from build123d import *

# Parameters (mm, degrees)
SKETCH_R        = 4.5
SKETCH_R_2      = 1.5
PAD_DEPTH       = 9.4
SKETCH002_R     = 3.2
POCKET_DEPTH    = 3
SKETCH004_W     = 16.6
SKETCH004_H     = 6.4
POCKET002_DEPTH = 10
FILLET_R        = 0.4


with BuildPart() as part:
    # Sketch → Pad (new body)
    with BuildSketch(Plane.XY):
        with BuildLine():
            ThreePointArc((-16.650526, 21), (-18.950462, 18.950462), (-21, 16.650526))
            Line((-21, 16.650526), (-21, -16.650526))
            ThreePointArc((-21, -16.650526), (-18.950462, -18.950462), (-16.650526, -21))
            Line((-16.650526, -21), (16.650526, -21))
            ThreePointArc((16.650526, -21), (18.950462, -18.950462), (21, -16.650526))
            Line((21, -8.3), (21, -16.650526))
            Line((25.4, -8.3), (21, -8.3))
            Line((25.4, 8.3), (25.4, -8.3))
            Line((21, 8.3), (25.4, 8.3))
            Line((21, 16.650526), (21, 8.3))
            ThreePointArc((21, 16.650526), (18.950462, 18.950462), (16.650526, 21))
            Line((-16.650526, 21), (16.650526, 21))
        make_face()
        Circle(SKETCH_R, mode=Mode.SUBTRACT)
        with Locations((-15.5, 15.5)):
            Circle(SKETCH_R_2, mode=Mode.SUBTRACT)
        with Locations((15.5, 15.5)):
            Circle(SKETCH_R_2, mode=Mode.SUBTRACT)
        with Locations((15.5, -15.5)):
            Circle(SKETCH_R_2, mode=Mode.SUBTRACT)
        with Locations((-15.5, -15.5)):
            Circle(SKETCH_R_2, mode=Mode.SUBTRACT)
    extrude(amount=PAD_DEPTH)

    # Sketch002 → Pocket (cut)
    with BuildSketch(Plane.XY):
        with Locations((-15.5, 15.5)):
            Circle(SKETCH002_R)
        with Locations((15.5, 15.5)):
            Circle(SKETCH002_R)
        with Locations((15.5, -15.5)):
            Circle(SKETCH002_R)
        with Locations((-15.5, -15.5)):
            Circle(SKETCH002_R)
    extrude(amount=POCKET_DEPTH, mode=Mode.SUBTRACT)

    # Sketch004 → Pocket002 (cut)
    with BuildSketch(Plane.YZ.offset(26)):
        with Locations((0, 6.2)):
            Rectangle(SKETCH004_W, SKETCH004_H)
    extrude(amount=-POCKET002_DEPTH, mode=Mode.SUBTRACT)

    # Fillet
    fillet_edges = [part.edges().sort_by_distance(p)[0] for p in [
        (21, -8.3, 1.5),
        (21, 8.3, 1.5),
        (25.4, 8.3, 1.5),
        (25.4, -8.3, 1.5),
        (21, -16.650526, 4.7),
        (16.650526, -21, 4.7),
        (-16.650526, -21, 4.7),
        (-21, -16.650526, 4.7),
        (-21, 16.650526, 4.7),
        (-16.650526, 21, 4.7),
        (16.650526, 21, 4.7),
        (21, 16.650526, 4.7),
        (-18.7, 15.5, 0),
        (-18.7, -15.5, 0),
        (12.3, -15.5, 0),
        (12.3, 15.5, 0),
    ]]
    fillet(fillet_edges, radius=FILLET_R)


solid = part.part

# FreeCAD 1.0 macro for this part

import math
import FreeCAD as App
import Part
import Sketcher

V = App.Vector
Q = App.Units.Quantity


def edges_at(feature, points):
    """Names of the edges that pass closest to the given points."""
    edges = feature.Shape.Edges
    near = lambda p: min(range(len(edges)), key=lambda i: edges[i].distToShape(Part.Vertex(*p))[0])
    return sorted({f"Edge{near(p) + 1}" for p in points})

doc = App.newDocument("Part")
body = doc.addObject("PartDesign::Body", "Body")

# Sketch on XY plane
sketch1 = body.newObject("Sketcher::SketchObject", "Sketch")
sketch1.AttachmentSupport = (doc.getObject("XY_Plane"), [""])
sketch1.MapMode = "FlatFace"
sketch1.addGeometry(Part.ArcOfCircle(Part.Circle(V(0, 0, 0), V(0, 0, 1), 26.8), math.radians(128.41), math.radians(141.59)), False)
sketch1.addGeometry(Part.LineSegment(V(-21, 16.7, 0), V(-21, -16.7, 0)), False)
sketch1.addGeometry(Part.ArcOfCircle(Part.Circle(V(0, 0, 0), V(0, 0, 1), 26.8), math.radians(-141.59), math.radians(-128.41)), False)
sketch1.addGeometry(Part.LineSegment(V(-16.7, -21, 0), V(16.7, -21, 0)), False)
sketch1.addGeometry(Part.ArcOfCircle(Part.Circle(V(0, 0, 0), V(0, 0, 1), 26.8), math.radians(-51.59), math.radians(-38.41)), False)
sketch1.addGeometry(Part.LineSegment(V(21, -16.7, 0), V(21, -8.3, 0)), False)
sketch1.addGeometry(Part.LineSegment(V(21, -8.3, 0), V(25.4, -8.3, 0)), False)
sketch1.addGeometry(Part.LineSegment(V(25.4, -8.3, 0), V(25.4, 8.3, 0)), False)
sketch1.addGeometry(Part.LineSegment(V(25.4, 8.3, 0), V(21, 8.3, 0)), False)
sketch1.addGeometry(Part.LineSegment(V(21, 8.3, 0), V(21, 16.7, 0)), False)
sketch1.addGeometry(Part.ArcOfCircle(Part.Circle(V(0, 0, 0), V(0, 0, 1), 26.8), math.radians(38.41), math.radians(51.59)), False)
sketch1.addGeometry(Part.LineSegment(V(16.7, 21, 0), V(-16.7, 21, 0)), False)
sketch1.addGeometry(Part.Circle(V(-15.5, -15.5, 0), V(0, 0, 1), 1.5), False)
sketch1.addGeometry(Part.Circle(V(15.5, -15.5, 0), V(0, 0, 1), 1.5), False)
sketch1.addGeometry(Part.Circle(V(-15.5, 15.5, 0), V(0, 0, 1), 1.5), False)
sketch1.addGeometry(Part.Circle(V(0, 0, 0), V(0, 0, 1), 4.5), False)
sketch1.addGeometry(Part.Circle(V(15.5, 15.5, 0), V(0, 0, 1), 1.5), False)
sketch1.addConstraint(Sketcher.Constraint("Coincident", 0, 2, 1, 1))
sketch1.addConstraint(Sketcher.Constraint("Coincident", 1, 2, 2, 1))
sketch1.addConstraint(Sketcher.Constraint("Coincident", 2, 2, 3, 1))
sketch1.addConstraint(Sketcher.Constraint("Coincident", 3, 2, 4, 1))
sketch1.addConstraint(Sketcher.Constraint("Coincident", 4, 2, 5, 1))
sketch1.addConstraint(Sketcher.Constraint("Coincident", 5, 2, 6, 1))
sketch1.addConstraint(Sketcher.Constraint("Coincident", 6, 2, 7, 1))
sketch1.addConstraint(Sketcher.Constraint("Coincident", 7, 2, 8, 1))
sketch1.addConstraint(Sketcher.Constraint("Coincident", 8, 2, 9, 1))
sketch1.addConstraint(Sketcher.Constraint("Coincident", 9, 2, 10, 1))
sketch1.addConstraint(Sketcher.Constraint("Coincident", 10, 2, 11, 1))
sketch1.addConstraint(Sketcher.Constraint("Coincident", 11, 2, 0, 1))
sketch1.addConstraint(Sketcher.Constraint("Vertical", 1))
sketch1.addConstraint(Sketcher.Constraint("Horizontal", 3))
sketch1.addConstraint(Sketcher.Constraint("Vertical", 5))
sketch1.addConstraint(Sketcher.Constraint("Horizontal", 6))
sketch1.addConstraint(Sketcher.Constraint("Vertical", 7))
sketch1.addConstraint(Sketcher.Constraint("Horizontal", 8))
sketch1.addConstraint(Sketcher.Constraint("Vertical", 9))
sketch1.addConstraint(Sketcher.Constraint("Horizontal", 11))
sketch1.addConstraint(Sketcher.Constraint("Coincident", 15, 3, -1, 1))
sketch1.addConstraint(Sketcher.Constraint("Equal", 0, 2))
sketch1.addConstraint(Sketcher.Constraint("Equal", 2, 4))
sketch1.addConstraint(Sketcher.Constraint("Equal", 4, 10))
sketch1.addConstraint(Sketcher.Constraint("Equal", 12, 13))
sketch1.addConstraint(Sketcher.Constraint("Equal", 13, 14))
sketch1.addConstraint(Sketcher.Constraint("Equal", 14, 16))
sketch1.addConstraint(Sketcher.Constraint("Symmetric", 0, 3, 4, 3, -1, 1))
sketch1.addConstraint(Sketcher.Constraint("Symmetric", 2, 3, 10, 3, -1, 1))
sketch1.addConstraint(Sketcher.Constraint("Symmetric", 13, 3, 14, 3, -1, 1))
sketch1.addConstraint(Sketcher.Constraint("Symmetric", 12, 3, 16, 3, -1, 1))
sketch1.addConstraint(Sketcher.Constraint("Symmetric", 2, 3, 4, 3, -2))
sketch1.addConstraint(Sketcher.Constraint("Symmetric", 12, 3, 13, 3, -2))
sketch1.addConstraint(Sketcher.Constraint("Symmetric", 5, 2, 8, 2, -1))
sketch1.addConstraint(Sketcher.Constraint("Horizontal", 1, 2, 4, 2))
sketch1.addConstraint(Sketcher.Constraint("Vertical", 3, 2, 10, 2))
sketch1.addConstraint(Sketcher.Constraint("Equal", 11, 1))
sketch1.addConstraint(Sketcher.Constraint("Diameter", 12, Q("3 mm")))
sketch1.addConstraint(Sketcher.Constraint("Diameter", 15, Q("9 mm")))
sketch1.addConstraint(Sketcher.Constraint("DistanceX", 6, 1, 6, 2, Q("4.4 mm")))
sketch1.addConstraint(Sketcher.Constraint("DistanceY", 7, 1, 7, 2, Q("16.6 mm")))
sketch1.addConstraint(Sketcher.Constraint("DistanceX", 0, 2, -1, 1, Q("21 mm")))
sketch1.addConstraint(Sketcher.Constraint("DistanceY", 2, 2, -1, 1, Q("21 mm")))
sketch1.addConstraint(Sketcher.Constraint("DistanceX", 12, 3, 13, 3, Q("31 mm")))
sketch1.addConstraint(Sketcher.Constraint("DistanceY", 12, 3, 14, 3, Q("31 mm")))
sketch1.addConstraint(Sketcher.Constraint("Radius", 0, Q("26.799989 mm")))
sketch1.addConstraint(Sketcher.Constraint("DistanceX", 3, 1, 3, 2, Q("33.301052 mm")))
pad1 = body.newObject("PartDesign::Pad", "Pad")
pad1.Profile = sketch1
pad1.Length = 9.4

# Sketch on XY plane
sketch2 = body.newObject("Sketcher::SketchObject", "Sketch001")
sketch2.AttachmentSupport = (doc.getObject("XY_Plane"), [""])
sketch2.MapMode = "FlatFace"
sketch2.addGeometry(Part.Circle(V(-15.5, 15.5, 0), V(0, 0, 1), 3.2), False)
sketch2.addGeometry(Part.Circle(V(15.5, 15.5, 0), V(0, 0, 1), 3.2), False)
sketch2.addGeometry(Part.Circle(V(15.5, -15.5, 0), V(0, 0, 1), 3.2), False)
sketch2.addGeometry(Part.Circle(V(-15.5, -15.5, 0), V(0, 0, 1), 3.2), False)
sketch2.addConstraint(Sketcher.Constraint("Equal", 0, 1))
sketch2.addConstraint(Sketcher.Constraint("Equal", 1, 2))
sketch2.addConstraint(Sketcher.Constraint("Equal", 2, 3))
sketch2.addConstraint(Sketcher.Constraint("Symmetric", 0, 3, 2, 3, -1, 1))
sketch2.addConstraint(Sketcher.Constraint("Symmetric", 1, 3, 3, 3, -1, 1))
sketch2.addConstraint(Sketcher.Constraint("Symmetric", 0, 3, 1, 3, -2))
sketch2.addConstraint(Sketcher.Constraint("Diameter", 0, Q("6.4 mm")))
sketch2.addConstraint(Sketcher.Constraint("DistanceX", 0, 3, 1, 3, Q("31 mm")))
sketch2.addConstraint(Sketcher.Constraint("DistanceY", 2, 3, 1, 3, Q("31 mm")))
pocket1 = body.newObject("PartDesign::Pocket", "Pocket")
pocket1.Profile = sketch2
pocket1.Length = 3
pocket1.Reversed = True

# Sketch on YZ plane
sketch3 = body.newObject("Sketcher::SketchObject", "Sketch002")
sketch3.AttachmentSupport = (doc.getObject("YZ_Plane"), [""])
sketch3.MapMode = "FlatFace"
sketch3.AttachmentOffset = App.Placement(V(0, 0, 26), App.Rotation())
sketch3.addGeometry(Part.LineSegment(V(-8, 9, 0), V(-8, 3, 0)), False)
sketch3.addGeometry(Part.LineSegment(V(-8, 3, 0), V(8, 3, 0)), False)
sketch3.addGeometry(Part.LineSegment(V(8, 3, 0), V(8, 9, 0)), False)
sketch3.addGeometry(Part.LineSegment(V(8, 9, 0), V(-8, 9, 0)), False)
sketch3.addConstraint(Sketcher.Constraint("Coincident", 0, 2, 1, 1))
sketch3.addConstraint(Sketcher.Constraint("Coincident", 1, 2, 2, 1))
sketch3.addConstraint(Sketcher.Constraint("Coincident", 2, 2, 3, 1))
sketch3.addConstraint(Sketcher.Constraint("Coincident", 3, 2, 0, 1))
sketch3.addConstraint(Sketcher.Constraint("Vertical", 0))
sketch3.addConstraint(Sketcher.Constraint("Horizontal", 1))
sketch3.addConstraint(Sketcher.Constraint("Vertical", 2))
sketch3.addConstraint(Sketcher.Constraint("Horizontal", 3))
sketch3.addConstraint(Sketcher.Constraint("DistanceX", 1, 1, 1, 2, Q("16.6 mm")))
sketch3.addConstraint(Sketcher.Constraint("DistanceY", 0, 2, 0, 1, Q("6.4 mm")))
sketch3.addConstraint(Sketcher.Constraint("DistanceY", -1, 1, 0, 2, Q("3 mm")))
sketch3.addConstraint(Sketcher.Constraint("DistanceX", 0, 2, -1, 1, Q("8.3 mm")))
pocket2 = body.newObject("PartDesign::Pocket", "Pocket001")
pocket2.Profile = sketch3
pocket2.Length = 10
doc.recompute()

fillet = body.newObject("PartDesign::Fillet", "Fillet")
fillet.Base = (pocket2, edges_at(pocket2, [
    (21, -8.3, 1.5),
    (21, 8.3, 1.5),
    (25.4, 8.3, 1.5),
    (25.4, -8.3, 1.5),
    (21, -16.651, 4.7),
    (16.651, -21, 4.7),
    (-16.651, -21, 4.7),
    (-21, -16.651, 4.7),
    (-21, 16.651, 4.7),
    (-16.651, 21, 4.7),
    (16.651, 21, 4.7),
    (21, 16.651, 4.7),
    (-18.7, 15.5, 0),
    (-18.7, -15.5, 0),
    (12.3, -15.5, 0),
    (12.3, 15.5, 0),
]))
fillet.Radius = 0.4

doc.recompute()
